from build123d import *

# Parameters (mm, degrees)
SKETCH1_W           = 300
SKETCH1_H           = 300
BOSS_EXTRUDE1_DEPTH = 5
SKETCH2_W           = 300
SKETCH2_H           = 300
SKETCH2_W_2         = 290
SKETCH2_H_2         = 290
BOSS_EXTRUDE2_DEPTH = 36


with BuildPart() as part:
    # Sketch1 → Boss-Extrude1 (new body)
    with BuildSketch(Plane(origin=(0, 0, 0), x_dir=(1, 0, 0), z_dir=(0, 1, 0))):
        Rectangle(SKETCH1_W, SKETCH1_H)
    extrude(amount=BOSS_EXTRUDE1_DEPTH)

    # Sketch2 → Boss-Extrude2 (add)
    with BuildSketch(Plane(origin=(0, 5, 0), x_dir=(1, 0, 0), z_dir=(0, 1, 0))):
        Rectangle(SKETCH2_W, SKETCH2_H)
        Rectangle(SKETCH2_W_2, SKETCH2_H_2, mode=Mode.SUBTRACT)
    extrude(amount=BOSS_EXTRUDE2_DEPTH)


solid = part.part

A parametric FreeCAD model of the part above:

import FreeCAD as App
import Part
import Sketcher
from FreeCAD import Vector


def add_polygon(sketch, points):
    """Adds a closed chain of lines whose ends are joined by coincident constraints."""
    first, n = sketch.GeometryCount, len(points)
    for a, b in zip(points, points[1:] + points[:1]):
        sketch.addGeometry(Part.LineSegment(App.Vector(*a, 0), App.Vector(*b, 0)), False)
    for i in range(n):
        sketch.addConstraint(Sketcher.Constraint("Coincident", first + i, 2, first + (i + 1) % n, 1))

doc = App.newDocument("Part")
body = doc.addObject("PartDesign::Body", "Body")

# Sketch on XZ plane
sketch1 = body.newObject("Sketcher::SketchObject", "Sketch")
sketch1.AttachmentSupport = (doc.getObject("XZ_Plane"), [""])
sketch1.MapMode = "FlatFace"
add_polygon(sketch1, [(-150, -150), (-150, 150), (150, 150), (150, -150)])  # lines 0-3
sketch1.addConstraint([
    Sketcher.Constraint("Vertical", 0),
    Sketcher.Constraint("Horizontal", 1),
    Sketcher.Constraint("Vertical", 2),
    Sketcher.Constraint("Horizontal", 3),
    Sketcher.Constraint("Symmetric", 0, 2, 2, 2, -1, 1),
    Sketcher.Constraint("Equal", 3, 0),
    Sketcher.Constraint("DistanceX", 1, 1, 1, 2, 300.0),
])
pad1 = body.newObject("PartDesign::Pad", "Pad")
pad1.Profile = sketch1
pad1.Length = 5
pad1.Reversed = True

# Sketch on XZ plane
sketch2 = body.newObject("Sketcher::SketchObject", "Sketch001")
sketch2.AttachmentSupport = (doc.getObject("XZ_Plane"), [""])
sketch2.MapMode = "FlatFace"
sketch2.AttachmentOffset = App.Placement(Vector(0, 0, -5), App.Rotation())
add_polygon(sketch2, [(-150, -150), (-150, 150), (150, 150), (150, -150)])  # lines 0-3
add_polygon(sketch2, [(145, 145), (-145, 145), (-145, -145), (145, -145)])  # lines 4-7
sketch2.addConstraint([
    Sketcher.Constraint("Vertical", 0),
    Sketcher.Constraint("Horizontal", 1),
    Sketcher.Constraint("Vertical", 2),
    Sketcher.Constraint("Horizontal", 3),
    Sketcher.Constraint("Horizontal", 4),
    Sketcher.Constraint("Vertical", 5),
    Sketcher.Constraint("Horizontal", 6),
    Sketcher.Constraint("Vertical", 7),
    Sketcher.Constraint("Symmetric", 0, 2, 2, 2, -1, 1),
    Sketcher.Constraint("Symmetric", 4, 2, 6, 2, -1, 1),
    Sketcher.Constraint("Equal", 3, 0),
    Sketcher.Constraint("Equal", 6, 5),
    Sketcher.Constraint("DistanceX", 1, 1, 1, 2, 300.0),
    Sketcher.Constraint("DistanceX", 4, 2, 4, 1, 290.0),
])
pad2 = body.newObject("PartDesign::Pad", "Pad001")
pad2.Profile = sketch2
pad2.Length = 36
pad2.Reversed = True

doc.recompute()
